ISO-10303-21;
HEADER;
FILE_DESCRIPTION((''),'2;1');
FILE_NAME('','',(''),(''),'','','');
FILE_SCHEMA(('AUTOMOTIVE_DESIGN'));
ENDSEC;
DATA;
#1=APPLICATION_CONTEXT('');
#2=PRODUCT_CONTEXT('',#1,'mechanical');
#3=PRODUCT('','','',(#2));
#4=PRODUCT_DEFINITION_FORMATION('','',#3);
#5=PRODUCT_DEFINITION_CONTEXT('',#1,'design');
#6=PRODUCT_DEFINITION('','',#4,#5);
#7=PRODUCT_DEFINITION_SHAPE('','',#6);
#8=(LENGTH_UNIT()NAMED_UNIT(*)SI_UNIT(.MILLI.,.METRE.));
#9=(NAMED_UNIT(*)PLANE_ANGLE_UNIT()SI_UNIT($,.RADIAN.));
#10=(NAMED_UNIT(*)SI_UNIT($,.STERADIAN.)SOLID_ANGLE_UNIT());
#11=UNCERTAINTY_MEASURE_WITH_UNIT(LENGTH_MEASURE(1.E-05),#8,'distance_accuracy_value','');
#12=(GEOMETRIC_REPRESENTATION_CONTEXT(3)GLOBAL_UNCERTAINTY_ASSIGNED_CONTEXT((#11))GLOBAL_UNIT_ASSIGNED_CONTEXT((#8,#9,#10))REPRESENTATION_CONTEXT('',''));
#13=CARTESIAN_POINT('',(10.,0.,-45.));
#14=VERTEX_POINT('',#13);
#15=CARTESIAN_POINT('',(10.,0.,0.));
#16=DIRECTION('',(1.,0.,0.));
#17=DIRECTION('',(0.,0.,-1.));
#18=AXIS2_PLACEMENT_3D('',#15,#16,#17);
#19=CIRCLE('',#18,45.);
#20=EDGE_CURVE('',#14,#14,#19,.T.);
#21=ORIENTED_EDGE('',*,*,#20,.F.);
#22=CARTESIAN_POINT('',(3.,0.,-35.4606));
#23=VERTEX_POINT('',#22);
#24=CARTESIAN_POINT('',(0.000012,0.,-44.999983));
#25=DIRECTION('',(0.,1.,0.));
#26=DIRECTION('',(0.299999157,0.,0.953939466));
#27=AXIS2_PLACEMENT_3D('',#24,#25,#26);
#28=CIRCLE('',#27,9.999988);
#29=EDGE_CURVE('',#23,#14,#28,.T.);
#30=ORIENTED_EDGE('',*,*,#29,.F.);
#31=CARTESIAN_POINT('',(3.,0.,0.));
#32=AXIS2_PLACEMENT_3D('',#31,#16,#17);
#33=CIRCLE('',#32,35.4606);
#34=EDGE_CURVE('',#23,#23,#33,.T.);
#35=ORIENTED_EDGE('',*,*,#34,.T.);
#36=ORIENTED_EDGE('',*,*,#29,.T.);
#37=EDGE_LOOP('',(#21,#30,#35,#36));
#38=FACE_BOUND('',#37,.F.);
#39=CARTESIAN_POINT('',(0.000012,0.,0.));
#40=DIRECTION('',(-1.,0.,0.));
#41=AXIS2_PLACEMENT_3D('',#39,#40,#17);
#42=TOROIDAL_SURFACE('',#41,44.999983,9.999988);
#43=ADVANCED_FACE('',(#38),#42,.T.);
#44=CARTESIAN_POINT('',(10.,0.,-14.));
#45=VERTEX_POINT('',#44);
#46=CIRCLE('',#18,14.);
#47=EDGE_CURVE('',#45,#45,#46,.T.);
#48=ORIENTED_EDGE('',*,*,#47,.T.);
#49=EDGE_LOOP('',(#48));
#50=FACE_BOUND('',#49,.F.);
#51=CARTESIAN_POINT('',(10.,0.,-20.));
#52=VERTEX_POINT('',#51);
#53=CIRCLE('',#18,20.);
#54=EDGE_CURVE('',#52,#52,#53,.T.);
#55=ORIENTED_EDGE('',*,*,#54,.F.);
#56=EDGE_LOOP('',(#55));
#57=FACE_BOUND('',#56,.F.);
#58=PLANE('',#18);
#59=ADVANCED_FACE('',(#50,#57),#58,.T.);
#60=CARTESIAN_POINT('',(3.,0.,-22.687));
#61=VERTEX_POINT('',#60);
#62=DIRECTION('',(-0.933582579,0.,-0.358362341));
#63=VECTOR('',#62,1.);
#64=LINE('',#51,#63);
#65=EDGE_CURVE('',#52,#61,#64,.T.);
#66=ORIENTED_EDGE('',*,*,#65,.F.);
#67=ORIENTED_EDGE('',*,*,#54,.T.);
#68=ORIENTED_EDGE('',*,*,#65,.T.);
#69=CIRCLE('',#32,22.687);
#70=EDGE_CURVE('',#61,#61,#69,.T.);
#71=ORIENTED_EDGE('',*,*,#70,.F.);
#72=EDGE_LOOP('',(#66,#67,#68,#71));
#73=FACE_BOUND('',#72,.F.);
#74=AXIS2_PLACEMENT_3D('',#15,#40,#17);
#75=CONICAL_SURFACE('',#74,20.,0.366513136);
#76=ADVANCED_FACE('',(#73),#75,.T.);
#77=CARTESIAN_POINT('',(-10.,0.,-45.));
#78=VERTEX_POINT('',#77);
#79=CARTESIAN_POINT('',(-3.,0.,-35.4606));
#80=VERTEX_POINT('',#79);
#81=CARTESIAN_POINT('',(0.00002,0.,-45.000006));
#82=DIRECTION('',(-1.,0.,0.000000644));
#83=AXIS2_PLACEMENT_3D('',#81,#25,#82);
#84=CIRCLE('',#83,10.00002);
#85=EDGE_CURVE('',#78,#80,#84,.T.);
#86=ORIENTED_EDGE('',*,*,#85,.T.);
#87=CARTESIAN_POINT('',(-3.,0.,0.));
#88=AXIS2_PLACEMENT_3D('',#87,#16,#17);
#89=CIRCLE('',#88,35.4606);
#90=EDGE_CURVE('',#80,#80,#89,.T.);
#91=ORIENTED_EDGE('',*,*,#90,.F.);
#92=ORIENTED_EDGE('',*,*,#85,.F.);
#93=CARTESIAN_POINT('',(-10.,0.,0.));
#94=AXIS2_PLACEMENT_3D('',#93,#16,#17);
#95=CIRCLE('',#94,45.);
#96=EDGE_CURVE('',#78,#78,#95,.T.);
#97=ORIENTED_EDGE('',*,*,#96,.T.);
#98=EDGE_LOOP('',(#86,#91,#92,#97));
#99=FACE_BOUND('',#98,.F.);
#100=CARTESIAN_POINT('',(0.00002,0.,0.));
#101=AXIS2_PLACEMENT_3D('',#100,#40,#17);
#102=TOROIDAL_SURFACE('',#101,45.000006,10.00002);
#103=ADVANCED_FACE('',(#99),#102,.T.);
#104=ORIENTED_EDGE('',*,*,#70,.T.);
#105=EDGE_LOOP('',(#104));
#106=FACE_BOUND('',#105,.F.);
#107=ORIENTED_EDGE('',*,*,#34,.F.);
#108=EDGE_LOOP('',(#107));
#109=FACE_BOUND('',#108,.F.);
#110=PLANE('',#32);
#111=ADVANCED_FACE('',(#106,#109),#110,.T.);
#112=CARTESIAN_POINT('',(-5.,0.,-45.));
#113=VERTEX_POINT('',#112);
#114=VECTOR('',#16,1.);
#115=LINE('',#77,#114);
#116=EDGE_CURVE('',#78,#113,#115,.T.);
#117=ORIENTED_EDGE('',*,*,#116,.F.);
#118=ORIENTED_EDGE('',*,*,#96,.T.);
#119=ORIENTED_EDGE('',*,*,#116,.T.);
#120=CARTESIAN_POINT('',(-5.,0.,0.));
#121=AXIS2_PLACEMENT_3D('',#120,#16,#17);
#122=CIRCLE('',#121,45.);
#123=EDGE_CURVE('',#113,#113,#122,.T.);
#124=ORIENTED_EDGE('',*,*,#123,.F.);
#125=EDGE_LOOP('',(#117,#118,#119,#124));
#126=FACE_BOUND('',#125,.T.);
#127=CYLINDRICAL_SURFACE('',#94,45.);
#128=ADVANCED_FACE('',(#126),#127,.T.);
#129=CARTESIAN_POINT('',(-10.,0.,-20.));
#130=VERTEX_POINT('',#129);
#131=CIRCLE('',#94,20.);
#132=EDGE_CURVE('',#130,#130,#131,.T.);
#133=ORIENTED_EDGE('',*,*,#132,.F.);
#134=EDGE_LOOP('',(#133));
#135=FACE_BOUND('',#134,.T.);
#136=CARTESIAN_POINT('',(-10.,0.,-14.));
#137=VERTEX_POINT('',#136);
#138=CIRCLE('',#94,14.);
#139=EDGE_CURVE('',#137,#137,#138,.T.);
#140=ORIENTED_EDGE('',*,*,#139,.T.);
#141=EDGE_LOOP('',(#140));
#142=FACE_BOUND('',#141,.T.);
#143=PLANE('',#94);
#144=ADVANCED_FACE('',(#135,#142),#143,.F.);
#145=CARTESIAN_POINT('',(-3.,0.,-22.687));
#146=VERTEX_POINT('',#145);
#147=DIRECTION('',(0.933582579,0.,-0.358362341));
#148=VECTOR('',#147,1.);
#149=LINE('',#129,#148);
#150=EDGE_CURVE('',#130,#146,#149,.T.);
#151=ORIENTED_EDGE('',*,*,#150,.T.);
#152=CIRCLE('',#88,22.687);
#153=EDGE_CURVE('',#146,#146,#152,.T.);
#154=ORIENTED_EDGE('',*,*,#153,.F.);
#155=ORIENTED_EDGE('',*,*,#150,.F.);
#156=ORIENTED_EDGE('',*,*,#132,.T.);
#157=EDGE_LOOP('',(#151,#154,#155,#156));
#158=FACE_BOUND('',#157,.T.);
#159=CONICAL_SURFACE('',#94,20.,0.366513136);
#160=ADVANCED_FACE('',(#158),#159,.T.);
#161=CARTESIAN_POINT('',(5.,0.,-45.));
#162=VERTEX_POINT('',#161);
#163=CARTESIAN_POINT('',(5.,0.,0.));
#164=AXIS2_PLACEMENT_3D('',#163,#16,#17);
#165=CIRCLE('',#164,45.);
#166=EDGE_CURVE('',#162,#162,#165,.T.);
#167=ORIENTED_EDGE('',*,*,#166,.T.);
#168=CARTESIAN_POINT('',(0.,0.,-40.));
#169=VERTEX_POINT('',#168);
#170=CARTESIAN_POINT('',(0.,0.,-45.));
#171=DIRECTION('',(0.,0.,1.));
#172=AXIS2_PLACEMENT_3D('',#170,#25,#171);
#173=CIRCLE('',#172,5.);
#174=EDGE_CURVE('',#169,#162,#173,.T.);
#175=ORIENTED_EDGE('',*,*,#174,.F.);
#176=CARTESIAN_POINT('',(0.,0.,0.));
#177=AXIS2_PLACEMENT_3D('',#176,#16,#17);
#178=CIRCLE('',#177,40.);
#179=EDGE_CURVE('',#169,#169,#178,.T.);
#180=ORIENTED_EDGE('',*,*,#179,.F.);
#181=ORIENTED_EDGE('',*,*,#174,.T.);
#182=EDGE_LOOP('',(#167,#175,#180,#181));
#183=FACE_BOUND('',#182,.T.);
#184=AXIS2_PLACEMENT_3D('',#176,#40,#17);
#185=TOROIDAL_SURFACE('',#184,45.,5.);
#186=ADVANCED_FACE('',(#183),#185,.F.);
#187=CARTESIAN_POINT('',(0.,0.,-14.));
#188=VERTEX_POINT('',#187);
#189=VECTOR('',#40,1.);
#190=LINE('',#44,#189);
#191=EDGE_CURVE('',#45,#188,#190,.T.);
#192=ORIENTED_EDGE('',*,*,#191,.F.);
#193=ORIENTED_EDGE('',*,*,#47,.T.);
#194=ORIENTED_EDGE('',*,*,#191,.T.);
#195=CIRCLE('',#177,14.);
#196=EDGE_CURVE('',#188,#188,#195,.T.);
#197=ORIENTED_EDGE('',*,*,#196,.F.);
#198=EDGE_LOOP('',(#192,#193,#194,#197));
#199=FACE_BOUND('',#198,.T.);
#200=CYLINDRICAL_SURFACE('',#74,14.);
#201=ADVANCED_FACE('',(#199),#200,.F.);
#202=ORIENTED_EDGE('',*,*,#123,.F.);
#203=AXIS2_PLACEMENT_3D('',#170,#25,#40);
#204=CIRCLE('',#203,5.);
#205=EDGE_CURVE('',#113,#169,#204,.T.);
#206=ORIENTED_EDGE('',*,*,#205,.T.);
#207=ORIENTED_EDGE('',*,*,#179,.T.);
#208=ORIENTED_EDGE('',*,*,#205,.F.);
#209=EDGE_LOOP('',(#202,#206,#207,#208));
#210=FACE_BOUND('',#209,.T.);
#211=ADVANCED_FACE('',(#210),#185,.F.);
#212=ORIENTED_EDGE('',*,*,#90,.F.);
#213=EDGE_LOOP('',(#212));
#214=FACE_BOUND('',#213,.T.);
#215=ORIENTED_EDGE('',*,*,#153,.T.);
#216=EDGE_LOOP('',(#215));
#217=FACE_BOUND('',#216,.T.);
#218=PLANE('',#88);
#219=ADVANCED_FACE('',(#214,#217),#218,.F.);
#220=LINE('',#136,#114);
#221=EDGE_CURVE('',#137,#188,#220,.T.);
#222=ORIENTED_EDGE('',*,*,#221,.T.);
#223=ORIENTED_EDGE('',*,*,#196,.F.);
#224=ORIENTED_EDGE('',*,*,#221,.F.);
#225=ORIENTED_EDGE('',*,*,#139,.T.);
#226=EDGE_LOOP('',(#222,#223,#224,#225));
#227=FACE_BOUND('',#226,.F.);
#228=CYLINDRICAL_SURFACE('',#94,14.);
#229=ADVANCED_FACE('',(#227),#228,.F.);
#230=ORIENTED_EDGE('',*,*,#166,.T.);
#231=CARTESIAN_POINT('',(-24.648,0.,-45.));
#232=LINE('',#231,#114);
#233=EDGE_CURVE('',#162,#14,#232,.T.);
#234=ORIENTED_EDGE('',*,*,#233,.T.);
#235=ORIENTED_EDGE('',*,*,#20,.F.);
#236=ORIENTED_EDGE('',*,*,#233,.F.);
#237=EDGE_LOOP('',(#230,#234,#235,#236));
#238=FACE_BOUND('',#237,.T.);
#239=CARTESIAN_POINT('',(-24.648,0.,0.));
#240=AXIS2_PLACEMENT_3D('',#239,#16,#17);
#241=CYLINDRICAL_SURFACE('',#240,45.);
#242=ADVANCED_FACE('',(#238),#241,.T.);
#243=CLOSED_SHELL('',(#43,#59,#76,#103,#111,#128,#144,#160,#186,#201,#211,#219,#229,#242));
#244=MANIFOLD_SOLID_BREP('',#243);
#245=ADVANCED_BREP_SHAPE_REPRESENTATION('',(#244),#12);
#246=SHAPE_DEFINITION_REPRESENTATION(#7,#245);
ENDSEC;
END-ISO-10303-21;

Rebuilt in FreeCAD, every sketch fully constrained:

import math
import FreeCAD as App
import Part
import Sketcher

V = App.Vector
Q = App.Units.Quantity

doc = App.newDocument("Part")
body = doc.addObject("PartDesign::Body", "Body")

sketch1 = body.newObject("Sketcher::SketchObject", "Sketch")
sketch1.AttachmentSupport = (doc.getObject("XZ_Plane"), [""])
sketch1.MapMode = "FlatFace"
sketch1.addGeometry([
    Part.LineSegment(V(-10, -20, 0), V(-10, -14, 0)),
    Part.LineSegment(V(-10, -14, 0), V(10, -14, 0)),
    Part.LineSegment(V(10, -14, 0), V(10, -20, 0)),
    Part.LineSegment(V(10, -20, 0), V(3, -22.687, 0)),
    Part.LineSegment(V(3, -22.687, 0), V(3, -35.4606, 0)),
    Part.ArcOfCircle(Part.Circle(V(0, -45, 0), V(0, 0, 1), 10), math.radians(0), math.radians(72.542411)),
    Part.LineSegment(V(10, -45, 0), V(5, -45, 0)),
    Part.ArcOfCircle(Part.Circle(V(0, -45, 0), V(0, 0, 1), 5), math.radians(0), math.radians(180)),
    Part.LineSegment(V(-5, -45, 0), V(-10, -45, 0)),
    Part.ArcOfCircle(Part.Circle(V(0, -45, 0), V(0, 0, 1), 10.000008), math.radians(107.457589), math.radians(180)),
    Part.LineSegment(V(-3, -35.4606, 0), V(-3, -22.687, 0)),
    Part.LineSegment(V(-3, -22.687, 0), V(-10, -20, 0)),
], False)
sketch1.addConstraint([
    Sketcher.Constraint("Coincident", 0, 2, 1, 1),
    Sketcher.Constraint("Coincident", 1, 2, 2, 1),
    Sketcher.Constraint("Coincident", 2, 2, 3, 1),
    Sketcher.Constraint("Coincident", 3, 2, 4, 1),
    Sketcher.Constraint("Coincident", 4, 2, 5, 2),
    Sketcher.Constraint("Coincident", 5, 1, 6, 1),
    Sketcher.Constraint("Coincident", 6, 2, 7, 1),
    Sketcher.Constraint("Coincident", 7, 2, 8, 1),
    Sketcher.Constraint("Coincident", 8, 2, 9, 2),
    Sketcher.Constraint("Coincident", 9, 1, 10, 1),
    Sketcher.Constraint("Coincident", 10, 2, 11, 1),
    Sketcher.Constraint("Coincident", 11, 2, 0, 1),
    Sketcher.Constraint("Vertical", 0),
    Sketcher.Constraint("Horizontal", 1),
    Sketcher.Constraint("Vertical", 2),
    Sketcher.Constraint("Vertical", 4),
    Sketcher.Constraint("Horizontal", 6),
    Sketcher.Constraint("Horizontal", 8),
    Sketcher.Constraint("Vertical", 10),
    Sketcher.Constraint("Coincident", 7, 3, 5, 3),
    Sketcher.Constraint("Coincident", 9, 3, 5, 3),
    Sketcher.Constraint("Equal", 5, 9),
    Sketcher.Constraint("Symmetric", 6, 2, 7, 2, -2),
    Sketcher.Constraint("Symmetric", 3, 2, 10, 2, -2),
    Sketcher.Constraint("Symmetric", 2, 2, 11, 2, -2),
    Sketcher.Constraint("Horizontal", 9, 3, 5, 1),
    Sketcher.Constraint("Vertical", 2, 2, 5, 1),
    Sketcher.Constraint("Radius", 5, 10.0),
    Sketcher.Constraint("Radius", 7, 5.0),
    Sketcher.Constraint("DistanceY", 0, 1, 0, 2, 6.0),
    Sketcher.Constraint("DistanceX", 9, 1, 4, 2, 6.0),
    Sketcher.Constraint("Angle", 3, Q("-159.0003 deg")),
    Sketcher.Constraint("DistanceY", 5, 3, -1, 1, 45.0),
    Sketcher.Constraint("DistanceY", 0, 2, -1, 1, 14.0),
])
revolution = body.newObject("PartDesign::Revolution", "Revolution")
revolution.Profile = sketch1
revolution.ReferenceAxis = (sketch1, ["H_Axis"])
revolution.Angle = 360

doc.recompute()
